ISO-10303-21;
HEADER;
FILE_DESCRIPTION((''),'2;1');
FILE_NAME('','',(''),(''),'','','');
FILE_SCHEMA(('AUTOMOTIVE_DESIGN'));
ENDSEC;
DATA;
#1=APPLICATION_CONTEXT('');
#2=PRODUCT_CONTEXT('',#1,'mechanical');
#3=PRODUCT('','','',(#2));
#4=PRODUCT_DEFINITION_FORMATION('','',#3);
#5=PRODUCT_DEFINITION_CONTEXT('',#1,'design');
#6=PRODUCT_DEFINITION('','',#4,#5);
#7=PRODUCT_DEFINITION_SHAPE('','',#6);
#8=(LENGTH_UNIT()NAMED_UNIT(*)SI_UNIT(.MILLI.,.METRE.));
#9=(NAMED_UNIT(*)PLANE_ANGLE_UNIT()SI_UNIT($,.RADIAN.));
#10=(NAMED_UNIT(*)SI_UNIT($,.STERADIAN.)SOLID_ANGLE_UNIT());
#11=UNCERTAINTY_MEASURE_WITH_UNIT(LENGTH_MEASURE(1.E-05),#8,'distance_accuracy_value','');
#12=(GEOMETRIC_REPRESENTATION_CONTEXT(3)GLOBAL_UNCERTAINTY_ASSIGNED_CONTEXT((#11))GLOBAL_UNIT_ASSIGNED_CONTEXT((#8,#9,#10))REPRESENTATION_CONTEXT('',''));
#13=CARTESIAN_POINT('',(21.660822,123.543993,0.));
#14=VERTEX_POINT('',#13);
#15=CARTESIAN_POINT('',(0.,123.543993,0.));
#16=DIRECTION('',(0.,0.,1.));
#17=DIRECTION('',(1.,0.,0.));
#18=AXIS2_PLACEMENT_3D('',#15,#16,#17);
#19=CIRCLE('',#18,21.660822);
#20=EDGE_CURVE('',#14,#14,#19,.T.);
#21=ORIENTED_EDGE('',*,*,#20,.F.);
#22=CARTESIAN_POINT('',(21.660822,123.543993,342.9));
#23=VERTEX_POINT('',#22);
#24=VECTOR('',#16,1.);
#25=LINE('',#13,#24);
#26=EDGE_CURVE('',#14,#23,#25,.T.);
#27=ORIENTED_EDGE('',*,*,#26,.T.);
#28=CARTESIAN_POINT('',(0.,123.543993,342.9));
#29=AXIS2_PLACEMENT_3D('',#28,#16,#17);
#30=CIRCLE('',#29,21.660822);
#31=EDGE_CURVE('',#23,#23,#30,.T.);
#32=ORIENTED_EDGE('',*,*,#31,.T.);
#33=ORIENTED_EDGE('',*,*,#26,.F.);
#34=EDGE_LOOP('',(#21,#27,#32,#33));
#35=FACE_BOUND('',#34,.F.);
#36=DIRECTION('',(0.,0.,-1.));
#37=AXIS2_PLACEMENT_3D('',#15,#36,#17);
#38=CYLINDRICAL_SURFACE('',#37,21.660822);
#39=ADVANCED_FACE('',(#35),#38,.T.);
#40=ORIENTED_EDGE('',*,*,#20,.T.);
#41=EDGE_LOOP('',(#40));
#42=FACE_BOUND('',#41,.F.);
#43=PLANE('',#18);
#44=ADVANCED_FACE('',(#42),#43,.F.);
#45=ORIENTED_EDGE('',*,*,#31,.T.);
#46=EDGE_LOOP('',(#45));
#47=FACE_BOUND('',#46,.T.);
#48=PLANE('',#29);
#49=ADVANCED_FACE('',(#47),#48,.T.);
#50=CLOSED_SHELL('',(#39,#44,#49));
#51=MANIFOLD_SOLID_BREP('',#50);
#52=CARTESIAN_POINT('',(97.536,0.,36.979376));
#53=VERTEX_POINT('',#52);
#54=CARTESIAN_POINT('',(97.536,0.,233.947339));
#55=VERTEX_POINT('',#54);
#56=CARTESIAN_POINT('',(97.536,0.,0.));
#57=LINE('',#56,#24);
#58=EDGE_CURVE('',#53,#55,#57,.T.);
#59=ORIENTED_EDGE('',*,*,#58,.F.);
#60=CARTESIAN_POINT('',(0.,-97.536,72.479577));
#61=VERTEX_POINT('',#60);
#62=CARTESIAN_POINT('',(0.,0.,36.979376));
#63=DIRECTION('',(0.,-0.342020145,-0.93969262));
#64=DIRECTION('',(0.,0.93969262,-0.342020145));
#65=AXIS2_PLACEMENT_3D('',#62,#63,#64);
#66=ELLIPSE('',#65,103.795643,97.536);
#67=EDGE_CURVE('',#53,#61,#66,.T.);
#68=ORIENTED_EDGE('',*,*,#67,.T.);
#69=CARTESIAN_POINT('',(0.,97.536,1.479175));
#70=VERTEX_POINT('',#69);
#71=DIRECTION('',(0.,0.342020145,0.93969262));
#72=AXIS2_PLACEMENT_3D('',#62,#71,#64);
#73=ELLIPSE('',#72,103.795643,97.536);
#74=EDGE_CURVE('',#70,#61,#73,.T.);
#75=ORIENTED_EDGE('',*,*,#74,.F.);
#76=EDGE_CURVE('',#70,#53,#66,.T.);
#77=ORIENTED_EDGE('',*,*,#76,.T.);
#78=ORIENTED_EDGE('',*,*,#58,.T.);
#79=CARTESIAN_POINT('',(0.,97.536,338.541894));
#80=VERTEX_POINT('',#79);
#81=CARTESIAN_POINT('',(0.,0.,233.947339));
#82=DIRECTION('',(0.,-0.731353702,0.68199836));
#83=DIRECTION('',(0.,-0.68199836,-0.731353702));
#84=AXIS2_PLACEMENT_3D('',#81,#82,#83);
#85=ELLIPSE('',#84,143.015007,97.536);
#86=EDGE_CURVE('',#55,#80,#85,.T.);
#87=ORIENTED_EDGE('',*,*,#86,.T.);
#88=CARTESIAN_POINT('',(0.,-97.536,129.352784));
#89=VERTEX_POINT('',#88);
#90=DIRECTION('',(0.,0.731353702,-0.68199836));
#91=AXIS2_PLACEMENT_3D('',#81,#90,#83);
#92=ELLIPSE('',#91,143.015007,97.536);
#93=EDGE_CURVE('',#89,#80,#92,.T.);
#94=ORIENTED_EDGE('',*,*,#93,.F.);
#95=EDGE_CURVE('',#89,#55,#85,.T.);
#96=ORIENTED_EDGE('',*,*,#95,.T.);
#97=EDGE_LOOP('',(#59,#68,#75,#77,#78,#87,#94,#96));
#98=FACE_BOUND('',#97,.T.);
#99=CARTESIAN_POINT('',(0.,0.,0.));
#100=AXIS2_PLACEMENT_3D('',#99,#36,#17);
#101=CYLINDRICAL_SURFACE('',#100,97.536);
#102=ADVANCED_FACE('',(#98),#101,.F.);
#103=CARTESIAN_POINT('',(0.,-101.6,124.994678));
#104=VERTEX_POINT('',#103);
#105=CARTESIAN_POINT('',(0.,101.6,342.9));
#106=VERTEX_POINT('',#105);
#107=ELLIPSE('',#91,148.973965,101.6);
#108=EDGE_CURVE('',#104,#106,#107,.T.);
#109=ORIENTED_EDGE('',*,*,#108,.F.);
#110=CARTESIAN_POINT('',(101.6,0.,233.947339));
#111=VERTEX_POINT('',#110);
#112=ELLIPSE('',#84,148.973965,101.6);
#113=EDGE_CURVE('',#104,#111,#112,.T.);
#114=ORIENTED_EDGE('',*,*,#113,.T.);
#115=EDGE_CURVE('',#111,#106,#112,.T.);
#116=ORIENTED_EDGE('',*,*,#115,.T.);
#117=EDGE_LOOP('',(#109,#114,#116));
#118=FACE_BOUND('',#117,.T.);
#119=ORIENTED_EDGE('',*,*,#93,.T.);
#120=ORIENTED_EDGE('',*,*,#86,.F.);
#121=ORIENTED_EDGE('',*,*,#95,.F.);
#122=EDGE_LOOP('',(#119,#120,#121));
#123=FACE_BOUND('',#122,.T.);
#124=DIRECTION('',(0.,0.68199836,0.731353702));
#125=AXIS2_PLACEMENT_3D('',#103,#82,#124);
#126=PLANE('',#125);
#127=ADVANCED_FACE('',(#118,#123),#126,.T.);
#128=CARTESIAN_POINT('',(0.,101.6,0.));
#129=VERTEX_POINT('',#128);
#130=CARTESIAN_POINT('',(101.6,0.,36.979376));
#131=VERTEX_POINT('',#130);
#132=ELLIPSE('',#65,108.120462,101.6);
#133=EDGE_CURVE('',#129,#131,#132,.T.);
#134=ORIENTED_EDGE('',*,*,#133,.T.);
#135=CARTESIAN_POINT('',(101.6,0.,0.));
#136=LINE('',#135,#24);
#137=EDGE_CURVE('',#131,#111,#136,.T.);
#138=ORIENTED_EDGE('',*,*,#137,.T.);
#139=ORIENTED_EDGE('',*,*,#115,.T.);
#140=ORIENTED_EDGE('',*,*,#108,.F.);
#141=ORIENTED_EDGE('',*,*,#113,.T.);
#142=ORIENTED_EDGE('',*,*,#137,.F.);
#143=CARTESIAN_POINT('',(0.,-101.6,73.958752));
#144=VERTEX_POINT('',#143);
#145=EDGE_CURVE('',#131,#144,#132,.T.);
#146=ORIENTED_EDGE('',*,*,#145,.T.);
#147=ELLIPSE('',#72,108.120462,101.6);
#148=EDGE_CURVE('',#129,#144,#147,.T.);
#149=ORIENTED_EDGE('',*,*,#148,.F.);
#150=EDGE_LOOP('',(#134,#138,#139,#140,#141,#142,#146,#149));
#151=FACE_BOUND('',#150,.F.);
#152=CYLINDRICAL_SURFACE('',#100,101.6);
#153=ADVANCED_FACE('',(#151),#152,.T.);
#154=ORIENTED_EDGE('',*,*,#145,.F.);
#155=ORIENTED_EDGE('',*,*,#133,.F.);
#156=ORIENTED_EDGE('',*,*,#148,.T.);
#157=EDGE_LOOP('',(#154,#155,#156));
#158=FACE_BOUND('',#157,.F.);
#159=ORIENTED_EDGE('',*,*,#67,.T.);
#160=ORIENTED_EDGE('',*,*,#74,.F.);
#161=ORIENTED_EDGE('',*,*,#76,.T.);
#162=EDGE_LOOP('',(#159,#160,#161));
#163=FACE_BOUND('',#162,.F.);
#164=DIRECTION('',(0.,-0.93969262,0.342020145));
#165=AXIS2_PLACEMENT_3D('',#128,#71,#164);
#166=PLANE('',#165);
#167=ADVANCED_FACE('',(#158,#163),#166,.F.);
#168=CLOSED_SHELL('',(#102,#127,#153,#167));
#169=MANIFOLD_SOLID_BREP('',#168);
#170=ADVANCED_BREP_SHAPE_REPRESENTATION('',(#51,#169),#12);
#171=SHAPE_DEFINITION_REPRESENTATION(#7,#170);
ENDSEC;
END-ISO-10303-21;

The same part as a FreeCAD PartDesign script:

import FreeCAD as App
import Part
import Sketcher
from FreeCAD import Vector
Q = App.Units.Quantity


def add_polygon(sketch, points):
    """Adds a closed chain of lines whose ends are joined by coincident constraints."""
    first, n = sketch.GeometryCount, len(points)
    for a, b in zip(points, points[1:] + points[:1]):
        sketch.addGeometry(Part.LineSegment(App.Vector(*a, 0), App.Vector(*b, 0)), False)
    for i in range(n):
        sketch.addConstraint(Sketcher.Constraint("Coincident", first + i, 2, first + (i + 1) % n, 1))

doc = App.newDocument("Part")
body = doc.addObject("PartDesign::Body", "Body")

# Sketch on XY plane
sketch1 = body.newObject("Sketcher::SketchObject", "Sketch")
sketch1.AttachmentSupport = (doc.getObject("XY_Plane"), [""])
sketch1.MapMode = "FlatFace"
sketch1.addGeometry([
    Part.Circle(Vector(0, 0, 0), Vector(0, 0, 1), 102),
    Part.Circle(Vector(0, 0, 0), Vector(0, 0, 1), 98),
], False)
sketch1.addConstraint([
    Sketcher.Constraint("Coincident", 0, 3, -1, 1),
    Sketcher.Constraint("Coincident", 1, 3, -1, 1),
    Sketcher.Constraint("Diameter", 0, Q("8 in")),
    Sketcher.Constraint("Diameter", 1, Q("7.68 in")),
])
pad1 = body.newObject("PartDesign::Pad", "Pad")
pad1.Profile = sketch1
pad1.Length = Q("13.5 in")

# Sketch on YZ plane
sketch2 = body.newObject("Sketcher::SketchObject", "Sketch001")
sketch2.AttachmentSupport = (doc.getObject("YZ_Plane"), [""])
sketch2.MapMode = "FlatFace"
add_polygon(sketch2, [(-102, 125), (102, 343), (-102, 343)])  # lines 0-2
add_polygon(sketch2, [(-102, 0), (102, 0), (-102, 74)])  # lines 3-5
sketch2.addConstraint([
    Sketcher.Constraint("Horizontal", 1),
    Sketcher.Constraint("Vertical", 2),
    Sketcher.Constraint("Horizontal", 3),
    Sketcher.Constraint("Vertical", 5),
    Sketcher.Constraint("Symmetric", 3, 2, 5, 2, -1, 1),
    Sketcher.Constraint("Vertical", 0, 2, 3, 2),
    Sketcher.Constraint("Vertical", 2, 2, 4, 2),
    Sketcher.Constraint("DistanceX", 1, 2, 1, 1, Q("8 in")),
    Sketcher.Constraint("Angle", 0, Q("47 deg")),
    Sketcher.Constraint("Angle", 4, Q("160 deg")),
    Sketcher.Constraint("DistanceY", -1, 1, 0, 2, Q("13.5 in")),
])
pocket1 = body.newObject("PartDesign::Pocket", "Pocket")
pocket1.Profile = sketch2
pocket1.Type = "ThroughAll"
pocket1.Midplane = True
body2 = doc.addObject("PartDesign::Body", "Body001")

# Sketch on XY plane
sketch3 = body2.newObject("Sketcher::SketchObject", "Sketch002")
sketch3.AttachmentSupport = (doc.getObject("XY_Plane001"), [""])
sketch3.MapMode = "FlatFace"
sketch3.addGeometry(Part.Circle(Vector(0, 124, 0), Vector(0, 0, 1), 22), False)
sketch3.addConstraint([
    Sketcher.Constraint("PointOnObject", 0, 3, -2),
    Sketcher.Constraint("Diameter", 0, 43.321644),
    Sketcher.Constraint("DistanceY", -1, 1, 0, 3, 123.543993),
])
pad2 = body2.newObject("PartDesign::Pad", "Pad001")
pad2.Profile = sketch3
pad2.Length = Q("13.5 in")

doc.recompute()
